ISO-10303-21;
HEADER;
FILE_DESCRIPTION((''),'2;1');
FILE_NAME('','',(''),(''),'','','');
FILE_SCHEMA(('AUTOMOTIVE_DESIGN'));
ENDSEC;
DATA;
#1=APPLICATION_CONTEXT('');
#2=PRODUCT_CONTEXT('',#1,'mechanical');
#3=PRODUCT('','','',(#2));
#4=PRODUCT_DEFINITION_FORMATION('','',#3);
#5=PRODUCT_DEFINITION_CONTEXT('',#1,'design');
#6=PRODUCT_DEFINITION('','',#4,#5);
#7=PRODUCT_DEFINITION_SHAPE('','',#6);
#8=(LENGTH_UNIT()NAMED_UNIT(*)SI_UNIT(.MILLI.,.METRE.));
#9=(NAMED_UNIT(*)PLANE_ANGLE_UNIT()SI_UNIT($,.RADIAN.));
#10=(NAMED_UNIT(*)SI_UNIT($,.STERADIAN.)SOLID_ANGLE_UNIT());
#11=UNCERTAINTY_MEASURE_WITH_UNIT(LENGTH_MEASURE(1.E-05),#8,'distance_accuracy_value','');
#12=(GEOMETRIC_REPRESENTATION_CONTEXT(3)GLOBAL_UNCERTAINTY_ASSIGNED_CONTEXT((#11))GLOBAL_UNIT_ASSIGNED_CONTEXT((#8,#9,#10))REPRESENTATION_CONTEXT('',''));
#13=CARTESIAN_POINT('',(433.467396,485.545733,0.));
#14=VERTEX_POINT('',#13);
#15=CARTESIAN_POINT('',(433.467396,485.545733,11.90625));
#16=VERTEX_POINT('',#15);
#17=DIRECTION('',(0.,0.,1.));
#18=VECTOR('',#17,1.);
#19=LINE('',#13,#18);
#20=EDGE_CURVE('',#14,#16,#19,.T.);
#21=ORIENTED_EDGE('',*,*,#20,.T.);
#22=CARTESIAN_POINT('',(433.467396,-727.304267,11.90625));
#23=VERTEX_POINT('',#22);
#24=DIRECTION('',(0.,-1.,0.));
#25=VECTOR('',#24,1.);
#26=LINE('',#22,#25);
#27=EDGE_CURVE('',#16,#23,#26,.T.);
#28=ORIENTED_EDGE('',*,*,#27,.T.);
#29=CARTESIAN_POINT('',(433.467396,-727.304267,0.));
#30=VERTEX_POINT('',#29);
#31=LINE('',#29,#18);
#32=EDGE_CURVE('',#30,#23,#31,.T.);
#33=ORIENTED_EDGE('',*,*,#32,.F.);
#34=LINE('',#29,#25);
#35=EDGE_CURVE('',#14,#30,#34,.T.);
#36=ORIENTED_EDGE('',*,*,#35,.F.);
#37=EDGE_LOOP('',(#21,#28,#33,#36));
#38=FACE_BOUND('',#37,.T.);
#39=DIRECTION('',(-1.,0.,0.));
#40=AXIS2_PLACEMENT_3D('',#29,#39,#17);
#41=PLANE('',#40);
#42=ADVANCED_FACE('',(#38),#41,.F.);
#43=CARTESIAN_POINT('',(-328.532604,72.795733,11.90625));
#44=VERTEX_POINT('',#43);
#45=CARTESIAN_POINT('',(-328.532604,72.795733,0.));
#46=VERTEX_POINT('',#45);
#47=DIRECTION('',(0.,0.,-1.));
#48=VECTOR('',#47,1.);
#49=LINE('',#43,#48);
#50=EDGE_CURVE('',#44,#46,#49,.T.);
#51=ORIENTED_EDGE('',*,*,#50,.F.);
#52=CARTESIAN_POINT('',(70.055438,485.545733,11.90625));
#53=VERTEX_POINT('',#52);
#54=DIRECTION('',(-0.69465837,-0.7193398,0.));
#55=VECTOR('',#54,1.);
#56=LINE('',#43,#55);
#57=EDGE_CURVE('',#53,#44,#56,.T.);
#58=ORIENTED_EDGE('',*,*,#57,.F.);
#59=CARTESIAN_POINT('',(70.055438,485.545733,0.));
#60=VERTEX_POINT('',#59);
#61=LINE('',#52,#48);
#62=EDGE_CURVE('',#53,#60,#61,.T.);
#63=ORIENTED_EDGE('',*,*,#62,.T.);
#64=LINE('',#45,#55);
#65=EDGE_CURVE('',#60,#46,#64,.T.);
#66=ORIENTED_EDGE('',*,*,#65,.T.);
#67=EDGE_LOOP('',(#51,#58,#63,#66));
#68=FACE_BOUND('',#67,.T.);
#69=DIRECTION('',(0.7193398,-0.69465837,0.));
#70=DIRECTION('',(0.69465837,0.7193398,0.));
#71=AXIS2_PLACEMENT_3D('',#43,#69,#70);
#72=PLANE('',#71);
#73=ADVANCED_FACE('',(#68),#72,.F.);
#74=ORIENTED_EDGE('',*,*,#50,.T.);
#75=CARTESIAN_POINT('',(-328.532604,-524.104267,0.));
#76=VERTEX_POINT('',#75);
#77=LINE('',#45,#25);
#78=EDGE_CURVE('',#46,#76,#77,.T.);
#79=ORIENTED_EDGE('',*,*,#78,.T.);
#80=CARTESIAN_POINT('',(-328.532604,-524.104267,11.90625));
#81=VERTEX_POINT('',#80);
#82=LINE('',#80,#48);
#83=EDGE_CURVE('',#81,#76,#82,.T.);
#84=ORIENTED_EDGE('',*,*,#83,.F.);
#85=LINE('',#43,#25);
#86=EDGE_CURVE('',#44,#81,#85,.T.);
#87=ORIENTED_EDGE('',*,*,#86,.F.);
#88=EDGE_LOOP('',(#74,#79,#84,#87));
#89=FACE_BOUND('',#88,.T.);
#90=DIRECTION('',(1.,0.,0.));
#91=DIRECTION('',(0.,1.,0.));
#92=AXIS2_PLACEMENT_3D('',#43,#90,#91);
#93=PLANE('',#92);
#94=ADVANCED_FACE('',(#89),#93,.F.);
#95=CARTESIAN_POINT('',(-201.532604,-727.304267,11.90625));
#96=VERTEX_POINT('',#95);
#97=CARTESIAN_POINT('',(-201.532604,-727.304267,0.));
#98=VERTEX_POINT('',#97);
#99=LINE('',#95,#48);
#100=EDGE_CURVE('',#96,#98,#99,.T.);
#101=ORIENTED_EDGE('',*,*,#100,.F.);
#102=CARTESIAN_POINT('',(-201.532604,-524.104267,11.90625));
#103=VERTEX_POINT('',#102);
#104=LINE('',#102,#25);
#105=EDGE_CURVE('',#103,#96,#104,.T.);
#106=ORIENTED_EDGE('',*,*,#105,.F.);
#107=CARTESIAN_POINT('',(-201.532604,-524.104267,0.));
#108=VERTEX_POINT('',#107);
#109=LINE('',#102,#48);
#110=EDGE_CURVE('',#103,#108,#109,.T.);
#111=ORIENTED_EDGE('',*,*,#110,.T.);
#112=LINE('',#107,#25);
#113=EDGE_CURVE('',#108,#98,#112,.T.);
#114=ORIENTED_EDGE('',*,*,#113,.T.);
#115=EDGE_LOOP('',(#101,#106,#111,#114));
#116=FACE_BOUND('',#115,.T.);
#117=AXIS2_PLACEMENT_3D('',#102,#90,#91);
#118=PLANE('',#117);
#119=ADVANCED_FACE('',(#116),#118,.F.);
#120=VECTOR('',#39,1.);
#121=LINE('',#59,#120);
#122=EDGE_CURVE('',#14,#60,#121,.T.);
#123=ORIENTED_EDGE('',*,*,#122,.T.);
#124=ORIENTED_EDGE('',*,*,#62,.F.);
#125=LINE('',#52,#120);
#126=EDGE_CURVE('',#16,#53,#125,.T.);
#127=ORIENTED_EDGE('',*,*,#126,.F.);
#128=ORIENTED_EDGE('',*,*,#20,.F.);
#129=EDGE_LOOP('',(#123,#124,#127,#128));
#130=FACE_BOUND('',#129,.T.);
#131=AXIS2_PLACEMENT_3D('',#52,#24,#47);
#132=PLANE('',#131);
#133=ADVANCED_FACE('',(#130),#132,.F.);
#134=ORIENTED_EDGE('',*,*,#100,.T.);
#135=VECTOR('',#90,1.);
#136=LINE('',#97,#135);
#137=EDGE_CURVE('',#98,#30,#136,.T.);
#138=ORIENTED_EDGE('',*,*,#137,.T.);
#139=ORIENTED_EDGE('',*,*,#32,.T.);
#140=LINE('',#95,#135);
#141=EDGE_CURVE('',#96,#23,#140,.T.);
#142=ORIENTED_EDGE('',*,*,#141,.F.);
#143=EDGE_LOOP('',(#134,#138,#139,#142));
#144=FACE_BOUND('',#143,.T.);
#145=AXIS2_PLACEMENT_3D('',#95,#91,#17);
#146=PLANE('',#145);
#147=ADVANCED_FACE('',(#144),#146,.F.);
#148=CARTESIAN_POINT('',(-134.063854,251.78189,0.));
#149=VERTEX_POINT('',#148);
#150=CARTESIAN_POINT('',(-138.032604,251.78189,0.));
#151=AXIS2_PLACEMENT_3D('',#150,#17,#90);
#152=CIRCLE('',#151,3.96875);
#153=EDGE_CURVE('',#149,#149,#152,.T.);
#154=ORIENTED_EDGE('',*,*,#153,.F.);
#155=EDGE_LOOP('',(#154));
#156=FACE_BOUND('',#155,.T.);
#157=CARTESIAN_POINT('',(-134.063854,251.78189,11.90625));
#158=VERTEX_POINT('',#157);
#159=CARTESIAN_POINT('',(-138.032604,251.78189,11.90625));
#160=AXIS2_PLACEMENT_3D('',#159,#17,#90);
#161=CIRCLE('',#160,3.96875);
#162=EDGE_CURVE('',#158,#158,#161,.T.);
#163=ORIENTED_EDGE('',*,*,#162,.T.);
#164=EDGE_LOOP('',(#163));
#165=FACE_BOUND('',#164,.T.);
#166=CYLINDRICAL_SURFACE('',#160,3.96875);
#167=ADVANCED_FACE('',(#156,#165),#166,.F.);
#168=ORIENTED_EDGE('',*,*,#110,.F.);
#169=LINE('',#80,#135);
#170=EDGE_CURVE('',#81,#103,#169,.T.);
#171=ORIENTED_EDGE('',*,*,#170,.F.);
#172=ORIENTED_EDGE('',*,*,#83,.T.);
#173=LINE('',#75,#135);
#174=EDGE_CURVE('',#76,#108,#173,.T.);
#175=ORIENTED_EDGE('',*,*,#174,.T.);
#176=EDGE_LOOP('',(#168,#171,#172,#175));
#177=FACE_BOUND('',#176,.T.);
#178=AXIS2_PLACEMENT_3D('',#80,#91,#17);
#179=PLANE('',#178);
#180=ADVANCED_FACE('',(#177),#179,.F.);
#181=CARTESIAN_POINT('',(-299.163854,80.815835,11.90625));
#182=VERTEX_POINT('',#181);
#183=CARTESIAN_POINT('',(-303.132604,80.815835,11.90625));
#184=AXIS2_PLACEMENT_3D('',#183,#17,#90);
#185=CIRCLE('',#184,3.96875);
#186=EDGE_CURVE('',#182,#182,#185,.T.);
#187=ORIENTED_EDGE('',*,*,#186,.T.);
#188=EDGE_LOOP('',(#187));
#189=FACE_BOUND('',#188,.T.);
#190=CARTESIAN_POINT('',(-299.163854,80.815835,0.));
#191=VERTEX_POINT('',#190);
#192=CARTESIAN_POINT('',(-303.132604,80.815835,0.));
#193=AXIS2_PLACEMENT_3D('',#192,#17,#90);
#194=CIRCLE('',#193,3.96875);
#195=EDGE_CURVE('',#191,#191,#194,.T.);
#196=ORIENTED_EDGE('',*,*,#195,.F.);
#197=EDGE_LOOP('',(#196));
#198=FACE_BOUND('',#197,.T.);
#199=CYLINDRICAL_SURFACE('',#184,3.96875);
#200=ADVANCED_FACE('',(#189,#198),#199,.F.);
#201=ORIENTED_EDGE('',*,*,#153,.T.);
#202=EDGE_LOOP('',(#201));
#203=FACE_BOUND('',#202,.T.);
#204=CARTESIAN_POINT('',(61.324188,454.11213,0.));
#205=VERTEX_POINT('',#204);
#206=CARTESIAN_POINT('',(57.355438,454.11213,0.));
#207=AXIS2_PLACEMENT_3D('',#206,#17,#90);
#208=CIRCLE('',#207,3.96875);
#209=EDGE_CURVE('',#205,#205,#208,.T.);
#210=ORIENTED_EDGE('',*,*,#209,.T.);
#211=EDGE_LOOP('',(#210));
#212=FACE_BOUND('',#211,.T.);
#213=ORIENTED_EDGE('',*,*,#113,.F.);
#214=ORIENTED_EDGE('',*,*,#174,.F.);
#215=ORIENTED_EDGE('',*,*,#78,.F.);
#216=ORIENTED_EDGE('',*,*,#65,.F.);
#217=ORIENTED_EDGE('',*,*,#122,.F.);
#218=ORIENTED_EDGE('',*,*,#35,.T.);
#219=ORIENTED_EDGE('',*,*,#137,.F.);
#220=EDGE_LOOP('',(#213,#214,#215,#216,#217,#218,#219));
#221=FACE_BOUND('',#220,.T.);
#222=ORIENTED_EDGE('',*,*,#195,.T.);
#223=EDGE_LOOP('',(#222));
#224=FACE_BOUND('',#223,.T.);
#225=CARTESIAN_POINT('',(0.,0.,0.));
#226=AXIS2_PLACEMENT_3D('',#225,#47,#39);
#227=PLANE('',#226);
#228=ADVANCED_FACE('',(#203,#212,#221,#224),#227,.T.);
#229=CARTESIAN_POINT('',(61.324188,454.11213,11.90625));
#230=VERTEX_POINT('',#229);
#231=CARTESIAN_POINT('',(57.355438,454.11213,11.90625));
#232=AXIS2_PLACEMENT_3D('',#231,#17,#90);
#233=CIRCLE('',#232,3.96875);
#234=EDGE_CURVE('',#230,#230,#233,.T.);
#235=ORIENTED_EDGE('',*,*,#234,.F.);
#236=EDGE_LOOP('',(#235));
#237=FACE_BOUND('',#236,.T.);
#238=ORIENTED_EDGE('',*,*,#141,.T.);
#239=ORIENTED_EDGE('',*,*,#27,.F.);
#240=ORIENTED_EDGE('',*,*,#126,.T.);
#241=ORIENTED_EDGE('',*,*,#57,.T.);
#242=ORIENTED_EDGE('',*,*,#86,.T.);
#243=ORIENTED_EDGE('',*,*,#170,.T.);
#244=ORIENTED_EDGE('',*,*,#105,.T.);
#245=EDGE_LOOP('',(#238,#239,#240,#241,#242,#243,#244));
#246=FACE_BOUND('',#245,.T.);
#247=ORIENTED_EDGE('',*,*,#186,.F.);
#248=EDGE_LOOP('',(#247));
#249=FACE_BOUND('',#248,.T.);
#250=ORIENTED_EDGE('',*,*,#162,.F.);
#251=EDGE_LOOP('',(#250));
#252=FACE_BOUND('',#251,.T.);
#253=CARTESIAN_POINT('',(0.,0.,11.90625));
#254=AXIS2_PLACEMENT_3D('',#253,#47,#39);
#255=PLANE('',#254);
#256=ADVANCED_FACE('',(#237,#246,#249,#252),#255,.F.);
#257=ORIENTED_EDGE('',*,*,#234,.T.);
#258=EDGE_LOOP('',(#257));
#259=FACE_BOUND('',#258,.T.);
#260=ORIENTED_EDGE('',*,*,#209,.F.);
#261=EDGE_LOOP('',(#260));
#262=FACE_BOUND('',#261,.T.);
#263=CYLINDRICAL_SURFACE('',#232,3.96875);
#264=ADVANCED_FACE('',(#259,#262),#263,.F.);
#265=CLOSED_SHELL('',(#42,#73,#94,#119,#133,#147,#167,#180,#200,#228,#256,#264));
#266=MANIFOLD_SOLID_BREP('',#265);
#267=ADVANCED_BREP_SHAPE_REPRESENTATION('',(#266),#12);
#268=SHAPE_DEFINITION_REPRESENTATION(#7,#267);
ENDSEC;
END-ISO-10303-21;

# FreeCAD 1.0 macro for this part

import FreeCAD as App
import Part
import Sketcher
from FreeCAD import Vector
Q = App.Units.Quantity


def add_polygon(sketch, points):
    """Adds a closed chain of lines whose ends are joined by coincident constraints."""
    first, n = sketch.GeometryCount, len(points)
    for a, b in zip(points, points[1:] + points[:1]):
        sketch.addGeometry(Part.LineSegment(App.Vector(*a, 0), App.Vector(*b, 0)), False)
    for i in range(n):
        sketch.addConstraint(Sketcher.Constraint("Coincident", first + i, 2, first + (i + 1) % n, 1))

doc = App.newDocument("Part")
params = doc.addObject("Spreadsheet::Sheet", "Params")
for row, (alias, value) in enumerate([
    ("sketch1_width", "5 in"),
    ("sketch1_width2", "45 in"),
    ("sketch1_height", "8 in"),
    ("sketch1_height2", "23.5 in"),
    ("pad1_length", "0.46875 in"),
    ("sketch2_diameter", "0.3125 in"),
    ("hole_diameter", "0.3125 in"),
    ("sketch3_width", "25 in"),
    ("sketch3_height", "47.75 in"),
], start=1):
    params.set(f"A{row}", alias)
    params.set(f"B{row}", "=" + value)
    params.setAlias(f"B{row}", alias)

body = doc.addObject("PartDesign::Body", "Body")

# Sketch on XY plane
sketch1 = doc.addObject("Sketcher::SketchObject", "Sketch")
body.addObject(sketch1)
sketch1.AttachmentSupport = (doc.XY_Plane, [""])
sketch1.MapMode = "FlatFace"
add_polygon(sketch1, [(941, -524), (1068, -524), (1068, 73), (670, 486), (70, 486), (-329, 73), (-329, -524), (-202, -524), (-202, -727), (941, -727)])  # lines 0-9
sketch1.addConstraint([
    Sketcher.Constraint("Horizontal", 0),
    Sketcher.Constraint("Vertical", 1),
    Sketcher.Constraint("Horizontal", 3),
    Sketcher.Constraint("Vertical", 5),
    Sketcher.Constraint("Horizontal", 6),
    Sketcher.Constraint("Vertical", 7),
    Sketcher.Constraint("Horizontal", 8),
    Sketcher.Constraint("Vertical", 9),
    Sketcher.Constraint("Horizontal", 1, 2, 4, 2),
    Sketcher.Constraint("Horizontal", 0, 2, 5, 2),
    Sketcher.Constraint("Equal", 0, 6),
    Sketcher.Constraint("Equal", 2, 4),
    Sketcher.Constraint("DistanceX", 0, 1, 0, 2, Q("5 in")),
    Sketcher.Constraint("DistanceX", 8, 1, 8, 2, Q("45 in")),
    Sketcher.Constraint("DistanceY", 7, 2, 7, 1, Q("8 in")),
    Sketcher.Constraint("DistanceY", 1, 1, 1, 2, Q("23.5 in")),
    Sketcher.Constraint("Angle", 2, Q("134 deg")),
    Sketcher.Constraint("DistanceY", 1, 2, 2, 2, Q("16.25 in")),
    Sketcher.Constraint("DistanceX", -1, 1, 0, 2, 1068.467396),
    Sketcher.Constraint("DistanceY", 0, 2, -1, 1, 524.104267),
])
sketch1.setExpression("Constraints[22]", "Params.sketch1_width")
sketch1.setExpression("Constraints[23]", "Params.sketch1_width2")
sketch1.setExpression("Constraints[24]", "Params.sketch1_height")
sketch1.setExpression("Constraints[25]", "Params.sketch1_height2")
pad1 = doc.addObject("PartDesign::Pad", "Pad")
body.addObject(pad1)
pad1.Profile = sketch1
pad1.setExpression("Length", "Params.pad1_length")

# Sketch on XY plane
sketch2 = doc.addObject("Sketcher::SketchObject", "Sketch001")
body.addObject(sketch2)
sketch2.AttachmentSupport = (doc.XY_Plane, [""])
sketch2.MapMode = "FlatFace"
sketch2.AttachmentOffset = App.Placement(Vector(0, 0, 0.46875 * 25.4), App.Rotation())
sketch2.addGeometry([
    Part.Circle(Vector(-303.1, 80.8, 0), Vector(0, 0, 1), 4),  # 0
    Part.Circle(Vector(-138, 251.8, 0), Vector(0, 0, 1), 4),  # 1
    Part.Circle(Vector(57.4, 454.1, 0), Vector(0, 0, 1), 4),  # 2
    Part.Circle(Vector(682.6, 454.1, 0), Vector(0, 0, 1), 4),  # 3
    Part.Circle(Vector(878, 251.8, 0), Vector(0, 0, 1), 4),  # 4
    Part.Circle(Vector(1043.1, 80.8, 0), Vector(0, 0, 1), 4),  # 5
], False)
sketch2.addConstraint([
    Sketcher.Constraint("Equal", 0, 1),
    Sketcher.Constraint("Equal", 1, 2),
    Sketcher.Constraint("Equal", 2, 3),
    Sketcher.Constraint("Equal", 3, 4),
    Sketcher.Constraint("Equal", 4, 5),
    Sketcher.Constraint("Horizontal", 2, 3, 3, 3),
    Sketcher.Constraint("Horizontal", 1, 3, 4, 3),
    Sketcher.Constraint("Horizontal", 0, 3, 5, 3),
    Sketcher.Constraint("Diameter", 0, Q("0.3125 in")),
    Sketcher.Constraint("DistanceX", 1, 3, 4, 3, Q("40 in")),
    Sketcher.Constraint("DistanceX", 0, 3, 5, 3, Q("53 in")),
    Sketcher.Constraint("DistanceX", 0, 3, 1, 3, Q("6.5 in")),
    Sketcher.Constraint("DistanceY", -1, 1, 1, 3, 251.78189),
    Sketcher.Constraint("DistanceY", -1, 1, 2, 3, 454.11213),
    Sketcher.Constraint("DistanceX", 1, 3, 2, 3, 195.388042),
    Sketcher.Constraint("DistanceX", 1, 3, 3, 3, 820.611958),
    Sketcher.Constraint("DistanceX", 0, 3, -1, 1, 303.132604),
    Sketcher.Constraint("DistanceY", -1, 1, 0, 3, 80.815835),
])
sketch2.setExpression("Constraints[8]", "Params.sketch2_diameter")
doc.recompute()
hole = doc.addObject("PartDesign::Hole", "Hole")
body.addObject(hole)
hole.Profile = sketch2
hole.ThreadType = "None"
hole.setExpression("Diameter", "Params.hole_diameter")
hole.DepthType = "ThroughAll"

# Sketch on XY plane
sketch3 = doc.addObject("Sketcher::SketchObject", "Sketch002")
body.addObject(sketch3)
sketch3.AttachmentSupport = (doc.XY_Plane, [""])
sketch3.MapMode = "FlatFace"
sketch3.AttachmentOffset = App.Placement(Vector(0, 0, 0.46875 * 25.4), App.Rotation())
add_polygon(sketch3, [(433, 486), (433, -727), (1068, -727), (1068, 486)])  # lines 0-3
sketch3.addConstraint([
    Sketcher.Constraint("Vertical", 0),
    Sketcher.Constraint("Horizontal", 1),
    Sketcher.Constraint("Vertical", 2),
    Sketcher.Constraint("Horizontal", 3),
    Sketcher.Constraint("DistanceX", 1, 1, 1, 2, Q("25 in")),
    Sketcher.Constraint("DistanceY", 0, 2, 0, 1, Q("47.75 in")),
    Sketcher.Constraint("DistanceX", -1, 1, 0, 2, 433.467396),
    Sketcher.Constraint("DistanceY", 0, 2, -1, 1, 727.304267),
])
sketch3.setExpression("Constraints[8]", "Params.sketch3_width")
sketch3.setExpression("Constraints[9]", "Params.sketch3_height")
pocket1 = doc.addObject("PartDesign::Pocket", "Pocket")
body.addObject(pocket1)
pocket1.Profile = sketch3
pocket1.Type = "ThroughAll"

doc.recompute()
